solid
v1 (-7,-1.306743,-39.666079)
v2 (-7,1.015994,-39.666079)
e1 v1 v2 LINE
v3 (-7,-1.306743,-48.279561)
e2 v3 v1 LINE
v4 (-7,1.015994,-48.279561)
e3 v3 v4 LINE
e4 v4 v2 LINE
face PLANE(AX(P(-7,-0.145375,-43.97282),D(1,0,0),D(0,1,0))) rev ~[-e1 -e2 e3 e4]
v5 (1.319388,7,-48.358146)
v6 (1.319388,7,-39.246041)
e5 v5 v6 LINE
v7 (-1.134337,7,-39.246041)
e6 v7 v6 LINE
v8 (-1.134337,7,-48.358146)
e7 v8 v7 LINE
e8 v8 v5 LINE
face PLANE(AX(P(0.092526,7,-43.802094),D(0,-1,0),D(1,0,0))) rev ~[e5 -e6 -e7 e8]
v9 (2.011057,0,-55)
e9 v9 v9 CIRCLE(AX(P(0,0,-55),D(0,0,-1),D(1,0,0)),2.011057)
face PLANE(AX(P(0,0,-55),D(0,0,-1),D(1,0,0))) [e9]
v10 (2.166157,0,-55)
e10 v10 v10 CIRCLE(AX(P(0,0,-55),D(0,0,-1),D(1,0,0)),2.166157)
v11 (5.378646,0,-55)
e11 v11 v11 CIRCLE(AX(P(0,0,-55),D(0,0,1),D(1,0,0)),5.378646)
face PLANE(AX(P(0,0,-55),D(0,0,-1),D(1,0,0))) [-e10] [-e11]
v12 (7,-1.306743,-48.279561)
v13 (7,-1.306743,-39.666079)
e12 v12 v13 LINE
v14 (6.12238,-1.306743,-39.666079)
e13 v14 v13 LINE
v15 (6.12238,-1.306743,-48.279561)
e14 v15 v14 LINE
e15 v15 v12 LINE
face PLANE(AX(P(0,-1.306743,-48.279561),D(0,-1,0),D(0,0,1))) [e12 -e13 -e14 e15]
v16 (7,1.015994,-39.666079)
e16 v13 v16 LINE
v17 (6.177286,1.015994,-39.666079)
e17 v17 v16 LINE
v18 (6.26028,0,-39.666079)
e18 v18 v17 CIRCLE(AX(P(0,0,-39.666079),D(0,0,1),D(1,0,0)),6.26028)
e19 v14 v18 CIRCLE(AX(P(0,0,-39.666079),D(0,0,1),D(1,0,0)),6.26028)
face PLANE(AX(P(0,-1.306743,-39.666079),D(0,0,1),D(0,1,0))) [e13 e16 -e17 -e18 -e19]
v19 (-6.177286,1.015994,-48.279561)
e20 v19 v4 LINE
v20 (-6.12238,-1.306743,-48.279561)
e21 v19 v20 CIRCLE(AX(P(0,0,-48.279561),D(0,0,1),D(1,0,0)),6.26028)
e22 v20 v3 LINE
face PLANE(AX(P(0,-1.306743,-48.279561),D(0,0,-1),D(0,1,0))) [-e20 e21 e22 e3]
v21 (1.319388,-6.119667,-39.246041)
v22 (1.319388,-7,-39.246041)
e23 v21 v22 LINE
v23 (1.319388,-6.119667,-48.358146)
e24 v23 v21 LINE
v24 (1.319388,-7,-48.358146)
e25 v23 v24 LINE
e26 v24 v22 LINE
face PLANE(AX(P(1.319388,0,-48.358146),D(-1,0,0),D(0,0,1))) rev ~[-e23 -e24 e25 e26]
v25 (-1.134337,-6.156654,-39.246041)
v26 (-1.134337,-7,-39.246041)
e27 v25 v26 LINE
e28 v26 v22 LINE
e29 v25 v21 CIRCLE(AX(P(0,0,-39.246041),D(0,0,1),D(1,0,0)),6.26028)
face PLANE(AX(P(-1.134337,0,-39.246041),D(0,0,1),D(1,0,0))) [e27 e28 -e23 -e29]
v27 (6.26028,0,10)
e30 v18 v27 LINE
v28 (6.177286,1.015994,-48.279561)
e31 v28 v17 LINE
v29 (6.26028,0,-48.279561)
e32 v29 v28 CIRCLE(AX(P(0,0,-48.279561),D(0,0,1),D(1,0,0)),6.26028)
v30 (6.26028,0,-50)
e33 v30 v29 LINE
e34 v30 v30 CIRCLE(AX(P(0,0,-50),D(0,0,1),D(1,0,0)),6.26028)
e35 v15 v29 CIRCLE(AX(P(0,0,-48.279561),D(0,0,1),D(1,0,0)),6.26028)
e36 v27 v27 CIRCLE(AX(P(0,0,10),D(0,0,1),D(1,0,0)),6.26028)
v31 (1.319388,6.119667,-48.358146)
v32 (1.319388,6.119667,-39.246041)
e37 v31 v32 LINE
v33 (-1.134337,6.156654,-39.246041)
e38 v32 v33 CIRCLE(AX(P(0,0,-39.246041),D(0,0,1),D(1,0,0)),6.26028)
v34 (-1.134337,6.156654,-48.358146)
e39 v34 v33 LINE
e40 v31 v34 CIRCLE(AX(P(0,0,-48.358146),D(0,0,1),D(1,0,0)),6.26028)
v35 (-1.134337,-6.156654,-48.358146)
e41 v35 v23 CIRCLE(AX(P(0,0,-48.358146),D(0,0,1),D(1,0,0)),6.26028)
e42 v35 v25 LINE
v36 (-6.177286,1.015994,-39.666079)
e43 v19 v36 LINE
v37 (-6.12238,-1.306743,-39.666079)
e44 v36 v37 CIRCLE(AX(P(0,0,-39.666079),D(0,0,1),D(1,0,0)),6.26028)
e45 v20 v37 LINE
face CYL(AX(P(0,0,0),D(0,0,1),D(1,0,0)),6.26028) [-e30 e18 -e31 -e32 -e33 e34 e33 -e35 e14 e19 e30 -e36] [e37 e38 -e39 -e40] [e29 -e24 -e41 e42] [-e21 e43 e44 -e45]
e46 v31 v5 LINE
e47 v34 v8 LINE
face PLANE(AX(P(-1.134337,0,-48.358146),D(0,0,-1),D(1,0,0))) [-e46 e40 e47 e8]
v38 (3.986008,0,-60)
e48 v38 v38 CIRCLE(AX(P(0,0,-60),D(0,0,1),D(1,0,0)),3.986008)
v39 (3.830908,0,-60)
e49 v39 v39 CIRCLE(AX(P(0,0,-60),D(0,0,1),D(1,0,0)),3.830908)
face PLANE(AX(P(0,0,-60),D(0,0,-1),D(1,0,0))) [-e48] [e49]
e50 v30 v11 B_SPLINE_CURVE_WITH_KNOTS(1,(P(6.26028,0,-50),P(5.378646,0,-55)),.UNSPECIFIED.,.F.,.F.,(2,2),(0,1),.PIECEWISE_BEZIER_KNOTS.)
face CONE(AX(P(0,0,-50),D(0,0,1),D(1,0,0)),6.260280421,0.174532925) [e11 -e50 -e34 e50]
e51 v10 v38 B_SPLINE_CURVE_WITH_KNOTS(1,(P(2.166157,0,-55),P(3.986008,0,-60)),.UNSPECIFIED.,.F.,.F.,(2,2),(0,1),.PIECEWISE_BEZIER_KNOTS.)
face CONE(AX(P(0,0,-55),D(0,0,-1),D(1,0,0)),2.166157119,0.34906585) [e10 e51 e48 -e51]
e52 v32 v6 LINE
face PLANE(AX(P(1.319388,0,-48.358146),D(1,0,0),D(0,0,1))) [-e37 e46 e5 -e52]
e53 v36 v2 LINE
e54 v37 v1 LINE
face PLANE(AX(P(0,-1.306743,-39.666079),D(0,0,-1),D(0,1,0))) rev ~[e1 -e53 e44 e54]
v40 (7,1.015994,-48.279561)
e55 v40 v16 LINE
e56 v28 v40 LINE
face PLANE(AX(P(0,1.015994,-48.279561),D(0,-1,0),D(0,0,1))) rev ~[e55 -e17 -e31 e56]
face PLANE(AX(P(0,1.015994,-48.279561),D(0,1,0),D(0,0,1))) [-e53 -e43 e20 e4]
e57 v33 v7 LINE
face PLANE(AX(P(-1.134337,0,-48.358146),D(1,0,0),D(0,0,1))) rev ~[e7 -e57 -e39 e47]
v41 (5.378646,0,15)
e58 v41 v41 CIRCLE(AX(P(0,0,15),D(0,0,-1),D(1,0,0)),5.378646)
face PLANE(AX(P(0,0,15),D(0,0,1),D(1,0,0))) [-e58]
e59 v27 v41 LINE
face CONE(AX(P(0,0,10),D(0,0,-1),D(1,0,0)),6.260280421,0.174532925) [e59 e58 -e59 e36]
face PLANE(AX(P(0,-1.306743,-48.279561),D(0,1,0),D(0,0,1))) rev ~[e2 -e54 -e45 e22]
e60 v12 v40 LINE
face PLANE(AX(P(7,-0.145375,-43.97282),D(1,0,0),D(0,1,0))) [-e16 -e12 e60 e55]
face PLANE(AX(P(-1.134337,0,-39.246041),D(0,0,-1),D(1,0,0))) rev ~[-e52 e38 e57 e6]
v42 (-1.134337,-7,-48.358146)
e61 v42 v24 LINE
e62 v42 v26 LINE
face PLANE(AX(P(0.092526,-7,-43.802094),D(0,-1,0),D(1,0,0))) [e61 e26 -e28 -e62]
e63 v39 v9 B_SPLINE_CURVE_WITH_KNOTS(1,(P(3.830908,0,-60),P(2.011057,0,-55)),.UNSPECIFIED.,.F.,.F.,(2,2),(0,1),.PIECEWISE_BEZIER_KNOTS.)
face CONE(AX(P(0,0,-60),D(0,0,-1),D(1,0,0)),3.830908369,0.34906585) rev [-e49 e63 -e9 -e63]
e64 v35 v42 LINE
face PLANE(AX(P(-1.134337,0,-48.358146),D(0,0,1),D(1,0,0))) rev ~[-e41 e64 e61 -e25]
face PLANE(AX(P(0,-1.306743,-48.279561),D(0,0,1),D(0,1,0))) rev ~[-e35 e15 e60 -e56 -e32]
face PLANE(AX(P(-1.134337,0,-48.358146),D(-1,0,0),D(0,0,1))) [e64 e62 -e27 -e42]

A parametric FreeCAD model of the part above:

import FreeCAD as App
import Part
import Sketcher
Q = App.Units.Quantity

doc = App.newDocument("Part")
params = doc.addObject("Spreadsheet::Sheet", "Params")
for row, (alias, value) in enumerate([
    ("pad1_length", "10 mm"),
    ("pad1_length2", "50 mm"),
    ("pad2_length", "5 mm"),
    ("pad2_taper", "-10 deg"),
    ("pad3_length", "5 mm"),
    ("pad3_taper", "-10 deg"),
    ("pad4_length", "5 mm"),
    ("pad4_taper", "20 deg"),
    ("pocket1_length", "5 mm"),
    ("pocket1_taper", "-20 deg"),
    ("pad5_length", "7 mm"),
    ("pad5_length2", "7 mm"),
    ("pad6_length", "7 mm"),
    ("pad6_length2", "7 mm"),
], start=1):
    params.set(f"A{row}", alias)
    params.set(f"B{row}", "=" + value)
    params.setAlias(f"B{row}", alias)

body = doc.addObject("PartDesign::Body", "Body")

sketch1 = body.newObject("Sketcher::SketchObject", "Sketch")
sketch1.AttachmentSupport = (doc.getObject("XY_Plane"), [""])
sketch1.MapMode = "FlatFace"
sketch1.addGeometry(Part.Circle(App.Vector(0, 0, 0), App.Vector(0, 0, 1), 6), False)
sketch1.addConstraint(Sketcher.Constraint("Coincident", 0, 3, -1, 1))
sketch1.addConstraint(Sketcher.Constraint("Diameter", 0, Q("12.520561 mm")))
pad1 = body.newObject("PartDesign::Pad", "Pad")
pad1.Profile = sketch1
pad1.Type = "TwoLengths"
pad1.setExpression("Length", "Params.pad1_length")
pad1.setExpression("Length2", "Params.pad1_length2")

sketch2 = body.newObject("Sketcher::SketchObject", "Sketch001")
sketch2.AttachmentSupport = (doc.getObject("XY_Plane"), [""])
sketch2.MapMode = "FlatFace"
sketch2.AttachmentOffset = App.Placement(App.Vector(0, 0, 10), App.Rotation())
sketch2.addGeometry(Part.Circle(App.Vector(0, 0, 0), App.Vector(0, 0, 1), 6), False)
sketch2.addConstraint(Sketcher.Constraint("Coincident", 0, 3, -1, 1))
sketch2.addConstraint(Sketcher.Constraint("Diameter", 0, Q("12.520561 mm")))
pad2 = body.newObject("PartDesign::Pad", "Pad001")
pad2.Profile = sketch2
pad2.setExpression("Length", "Params.pad2_length")
pad2.setExpression("TaperAngle", "Params.pad2_taper")

sketch3 = body.newObject("Sketcher::SketchObject", "Sketch002")
sketch3.AttachmentSupport = (doc.getObject("XY_Plane"), [""])
sketch3.MapMode = "FlatFace"
sketch3.AttachmentOffset = App.Placement(App.Vector(0, 0, -50), App.Rotation())
sketch3.addGeometry(Part.Circle(App.Vector(0, 0, 0), App.Vector(0, 0, 1), 6), False)
sketch3.addConstraint(Sketcher.Constraint("Coincident", 0, 3, -1, 1))
sketch3.addConstraint(Sketcher.Constraint("Diameter", 0, Q("12.520561 mm")))
pad3 = body.newObject("PartDesign::Pad", "Pad002")
pad3.Profile = sketch3
pad3.setExpression("Length", "Params.pad3_length")
pad3.Reversed = True
pad3.setExpression("TaperAngle", "Params.pad3_taper")

sketch4 = body.newObject("Sketcher::SketchObject", "Sketch003")
sketch4.AttachmentSupport = (doc.getObject("XY_Plane"), [""])
sketch4.MapMode = "FlatFace"
sketch4.AttachmentOffset = App.Placement(App.Vector(0, 0, -55), App.Rotation())
sketch4.addGeometry(Part.Circle(App.Vector(0, 0, 0), App.Vector(0, 0, 1), 2.2), False)
sketch4.addConstraint(Sketcher.Constraint("Coincident", 0, 3, -1, 1))
sketch4.addConstraint(Sketcher.Constraint("Diameter", 0, Q("4.332314 mm")))
pad4 = body.newObject("PartDesign::Pad", "Pad003")
pad4.Profile = sketch4
pad4.setExpression("Length", "Params.pad4_length")
pad4.Reversed = True
pad4.setExpression("TaperAngle", "Params.pad4_taper")

sketch5 = body.newObject("Sketcher::SketchObject", "Sketch004")
sketch5.AttachmentSupport = (doc.getObject("XY_Plane"), [""])
sketch5.MapMode = "FlatFace"
sketch5.AttachmentOffset = App.Placement(App.Vector(0, 0, -60), App.Rotation())
sketch5.addGeometry(Part.Circle(App.Vector(0, 0, 0), App.Vector(0, 0, 1), 3.8), False)
sketch5.addConstraint(Sketcher.Constraint("Coincident", 0, 3, -1, 1))
sketch5.addConstraint(Sketcher.Constraint("Diameter", 0, Q("7.661817 mm")))
pocket1 = body.newObject("PartDesign::Pocket", "Pocket")
pocket1.Profile = sketch5
pocket1.setExpression("Length", "Params.pocket1_length")
pocket1.Reversed = True
pocket1.setExpression("TaperAngle", "Params.pocket1_taper")

sketch6 = body.newObject("Sketcher::SketchObject", "Sketch005")
sketch6.AttachmentSupport = (doc.getObject("XZ_Plane"), [""])
sketch6.MapMode = "FlatFace"
sketch6.addGeometry(Part.LineSegment(App.Vector(-1.1, -39.2, 0), App.Vector(-1.1, -48.4, 0)), False)
sketch6.addGeometry(Part.LineSegment(App.Vector(-1.1, -48.4, 0), App.Vector(1.3, -48.4, 0)), False)
sketch6.addGeometry(Part.LineSegment(App.Vector(1.3, -48.4, 0), App.Vector(1.3, -39.2, 0)), False)
sketch6.addGeometry(Part.LineSegment(App.Vector(1.3, -39.2, 0), App.Vector(-1.1, -39.2, 0)), False)
sketch6.addConstraint(Sketcher.Constraint("Coincident", 0, 2, 1, 1))
sketch6.addConstraint(Sketcher.Constraint("Coincident", 1, 2, 2, 1))
sketch6.addConstraint(Sketcher.Constraint("Coincident", 2, 2, 3, 1))
sketch6.addConstraint(Sketcher.Constraint("Coincident", 3, 2, 0, 1))
sketch6.addConstraint(Sketcher.Constraint("Vertical", 0))
sketch6.addConstraint(Sketcher.Constraint("Horizontal", 1))
sketch6.addConstraint(Sketcher.Constraint("Vertical", 2))
sketch6.addConstraint(Sketcher.Constraint("Horizontal", 3))
sketch6.addConstraint(Sketcher.Constraint("DistanceX", 1, 1, 1, 2, Q("2.453725 mm")))
sketch6.addConstraint(Sketcher.Constraint("DistanceY", 0, 2, 0, 1, Q("9.112105 mm")))
sketch6.addConstraint(Sketcher.Constraint("DistanceX", -1, 1, 1, 2, Q("1.319388 mm")))
sketch6.addConstraint(Sketcher.Constraint("DistanceY", 2, 2, -1, 1, Q("39.246041 mm")))
pad5 = body.newObject("PartDesign::Pad", "Pad004")
pad5.Profile = sketch6
pad5.Type = "TwoLengths"
pad5.setExpression("Length", "Params.pad5_length")
pad5.setExpression("Length2", "Params.pad5_length2")

sketch7 = body.newObject("Sketcher::SketchObject", "Sketch006")
sketch7.AttachmentSupport = (doc.getObject("YZ_Plane"), [""])
sketch7.MapMode = "FlatFace"
sketch7.addGeometry(Part.LineSegment(App.Vector(-1.3, -39.7, 0), App.Vector(-1.3, -48.3, 0)), False)
sketch7.addGeometry(Part.LineSegment(App.Vector(-1.3, -48.3, 0), App.Vector(1, -48.3, 0)), False)
sketch7.addGeometry(Part.LineSegment(App.Vector(1, -48.3, 0), App.Vector(1, -39.7, 0)), False)
sketch7.addGeometry(Part.LineSegment(App.Vector(1, -39.7, 0), App.Vector(-1.3, -39.7, 0)), False)
sketch7.addConstraint(Sketcher.Constraint("Coincident", 0, 2, 1, 1))
sketch7.addConstraint(Sketcher.Constraint("Coincident", 1, 2, 2, 1))
sketch7.addConstraint(Sketcher.Constraint("Coincident", 2, 2, 3, 1))
sketch7.addConstraint(Sketcher.Constraint("Coincident", 3, 2, 0, 1))
sketch7.addConstraint(Sketcher.Constraint("Vertical", 0))
sketch7.addConstraint(Sketcher.Constraint("Horizontal", 1))
sketch7.addConstraint(Sketcher.Constraint("Vertical", 2))
sketch7.addConstraint(Sketcher.Constraint("Horizontal", 3))
sketch7.addConstraint(Sketcher.Constraint("DistanceX", 1, 1, 1, 2, Q("2.322737 mm")))
sketch7.addConstraint(Sketcher.Constraint("DistanceY", 0, 2, 0, 1, Q("8.613482 mm")))
sketch7.addConstraint(Sketcher.Constraint("DistanceY", 0, 2, -1, 1, Q("48.279561 mm")))
sketch7.addConstraint(Sketcher.Constraint("DistanceX", 0, 2, -1, 1, Q("1.306743 mm")))
pad6 = body.newObject("PartDesign::Pad", "Pad005")
pad6.Profile = sketch7
pad6.Type = "TwoLengths"
pad6.setExpression("Length", "Params.pad6_length")
pad6.setExpression("Length2", "Params.pad6_length2")

doc.recompute()
